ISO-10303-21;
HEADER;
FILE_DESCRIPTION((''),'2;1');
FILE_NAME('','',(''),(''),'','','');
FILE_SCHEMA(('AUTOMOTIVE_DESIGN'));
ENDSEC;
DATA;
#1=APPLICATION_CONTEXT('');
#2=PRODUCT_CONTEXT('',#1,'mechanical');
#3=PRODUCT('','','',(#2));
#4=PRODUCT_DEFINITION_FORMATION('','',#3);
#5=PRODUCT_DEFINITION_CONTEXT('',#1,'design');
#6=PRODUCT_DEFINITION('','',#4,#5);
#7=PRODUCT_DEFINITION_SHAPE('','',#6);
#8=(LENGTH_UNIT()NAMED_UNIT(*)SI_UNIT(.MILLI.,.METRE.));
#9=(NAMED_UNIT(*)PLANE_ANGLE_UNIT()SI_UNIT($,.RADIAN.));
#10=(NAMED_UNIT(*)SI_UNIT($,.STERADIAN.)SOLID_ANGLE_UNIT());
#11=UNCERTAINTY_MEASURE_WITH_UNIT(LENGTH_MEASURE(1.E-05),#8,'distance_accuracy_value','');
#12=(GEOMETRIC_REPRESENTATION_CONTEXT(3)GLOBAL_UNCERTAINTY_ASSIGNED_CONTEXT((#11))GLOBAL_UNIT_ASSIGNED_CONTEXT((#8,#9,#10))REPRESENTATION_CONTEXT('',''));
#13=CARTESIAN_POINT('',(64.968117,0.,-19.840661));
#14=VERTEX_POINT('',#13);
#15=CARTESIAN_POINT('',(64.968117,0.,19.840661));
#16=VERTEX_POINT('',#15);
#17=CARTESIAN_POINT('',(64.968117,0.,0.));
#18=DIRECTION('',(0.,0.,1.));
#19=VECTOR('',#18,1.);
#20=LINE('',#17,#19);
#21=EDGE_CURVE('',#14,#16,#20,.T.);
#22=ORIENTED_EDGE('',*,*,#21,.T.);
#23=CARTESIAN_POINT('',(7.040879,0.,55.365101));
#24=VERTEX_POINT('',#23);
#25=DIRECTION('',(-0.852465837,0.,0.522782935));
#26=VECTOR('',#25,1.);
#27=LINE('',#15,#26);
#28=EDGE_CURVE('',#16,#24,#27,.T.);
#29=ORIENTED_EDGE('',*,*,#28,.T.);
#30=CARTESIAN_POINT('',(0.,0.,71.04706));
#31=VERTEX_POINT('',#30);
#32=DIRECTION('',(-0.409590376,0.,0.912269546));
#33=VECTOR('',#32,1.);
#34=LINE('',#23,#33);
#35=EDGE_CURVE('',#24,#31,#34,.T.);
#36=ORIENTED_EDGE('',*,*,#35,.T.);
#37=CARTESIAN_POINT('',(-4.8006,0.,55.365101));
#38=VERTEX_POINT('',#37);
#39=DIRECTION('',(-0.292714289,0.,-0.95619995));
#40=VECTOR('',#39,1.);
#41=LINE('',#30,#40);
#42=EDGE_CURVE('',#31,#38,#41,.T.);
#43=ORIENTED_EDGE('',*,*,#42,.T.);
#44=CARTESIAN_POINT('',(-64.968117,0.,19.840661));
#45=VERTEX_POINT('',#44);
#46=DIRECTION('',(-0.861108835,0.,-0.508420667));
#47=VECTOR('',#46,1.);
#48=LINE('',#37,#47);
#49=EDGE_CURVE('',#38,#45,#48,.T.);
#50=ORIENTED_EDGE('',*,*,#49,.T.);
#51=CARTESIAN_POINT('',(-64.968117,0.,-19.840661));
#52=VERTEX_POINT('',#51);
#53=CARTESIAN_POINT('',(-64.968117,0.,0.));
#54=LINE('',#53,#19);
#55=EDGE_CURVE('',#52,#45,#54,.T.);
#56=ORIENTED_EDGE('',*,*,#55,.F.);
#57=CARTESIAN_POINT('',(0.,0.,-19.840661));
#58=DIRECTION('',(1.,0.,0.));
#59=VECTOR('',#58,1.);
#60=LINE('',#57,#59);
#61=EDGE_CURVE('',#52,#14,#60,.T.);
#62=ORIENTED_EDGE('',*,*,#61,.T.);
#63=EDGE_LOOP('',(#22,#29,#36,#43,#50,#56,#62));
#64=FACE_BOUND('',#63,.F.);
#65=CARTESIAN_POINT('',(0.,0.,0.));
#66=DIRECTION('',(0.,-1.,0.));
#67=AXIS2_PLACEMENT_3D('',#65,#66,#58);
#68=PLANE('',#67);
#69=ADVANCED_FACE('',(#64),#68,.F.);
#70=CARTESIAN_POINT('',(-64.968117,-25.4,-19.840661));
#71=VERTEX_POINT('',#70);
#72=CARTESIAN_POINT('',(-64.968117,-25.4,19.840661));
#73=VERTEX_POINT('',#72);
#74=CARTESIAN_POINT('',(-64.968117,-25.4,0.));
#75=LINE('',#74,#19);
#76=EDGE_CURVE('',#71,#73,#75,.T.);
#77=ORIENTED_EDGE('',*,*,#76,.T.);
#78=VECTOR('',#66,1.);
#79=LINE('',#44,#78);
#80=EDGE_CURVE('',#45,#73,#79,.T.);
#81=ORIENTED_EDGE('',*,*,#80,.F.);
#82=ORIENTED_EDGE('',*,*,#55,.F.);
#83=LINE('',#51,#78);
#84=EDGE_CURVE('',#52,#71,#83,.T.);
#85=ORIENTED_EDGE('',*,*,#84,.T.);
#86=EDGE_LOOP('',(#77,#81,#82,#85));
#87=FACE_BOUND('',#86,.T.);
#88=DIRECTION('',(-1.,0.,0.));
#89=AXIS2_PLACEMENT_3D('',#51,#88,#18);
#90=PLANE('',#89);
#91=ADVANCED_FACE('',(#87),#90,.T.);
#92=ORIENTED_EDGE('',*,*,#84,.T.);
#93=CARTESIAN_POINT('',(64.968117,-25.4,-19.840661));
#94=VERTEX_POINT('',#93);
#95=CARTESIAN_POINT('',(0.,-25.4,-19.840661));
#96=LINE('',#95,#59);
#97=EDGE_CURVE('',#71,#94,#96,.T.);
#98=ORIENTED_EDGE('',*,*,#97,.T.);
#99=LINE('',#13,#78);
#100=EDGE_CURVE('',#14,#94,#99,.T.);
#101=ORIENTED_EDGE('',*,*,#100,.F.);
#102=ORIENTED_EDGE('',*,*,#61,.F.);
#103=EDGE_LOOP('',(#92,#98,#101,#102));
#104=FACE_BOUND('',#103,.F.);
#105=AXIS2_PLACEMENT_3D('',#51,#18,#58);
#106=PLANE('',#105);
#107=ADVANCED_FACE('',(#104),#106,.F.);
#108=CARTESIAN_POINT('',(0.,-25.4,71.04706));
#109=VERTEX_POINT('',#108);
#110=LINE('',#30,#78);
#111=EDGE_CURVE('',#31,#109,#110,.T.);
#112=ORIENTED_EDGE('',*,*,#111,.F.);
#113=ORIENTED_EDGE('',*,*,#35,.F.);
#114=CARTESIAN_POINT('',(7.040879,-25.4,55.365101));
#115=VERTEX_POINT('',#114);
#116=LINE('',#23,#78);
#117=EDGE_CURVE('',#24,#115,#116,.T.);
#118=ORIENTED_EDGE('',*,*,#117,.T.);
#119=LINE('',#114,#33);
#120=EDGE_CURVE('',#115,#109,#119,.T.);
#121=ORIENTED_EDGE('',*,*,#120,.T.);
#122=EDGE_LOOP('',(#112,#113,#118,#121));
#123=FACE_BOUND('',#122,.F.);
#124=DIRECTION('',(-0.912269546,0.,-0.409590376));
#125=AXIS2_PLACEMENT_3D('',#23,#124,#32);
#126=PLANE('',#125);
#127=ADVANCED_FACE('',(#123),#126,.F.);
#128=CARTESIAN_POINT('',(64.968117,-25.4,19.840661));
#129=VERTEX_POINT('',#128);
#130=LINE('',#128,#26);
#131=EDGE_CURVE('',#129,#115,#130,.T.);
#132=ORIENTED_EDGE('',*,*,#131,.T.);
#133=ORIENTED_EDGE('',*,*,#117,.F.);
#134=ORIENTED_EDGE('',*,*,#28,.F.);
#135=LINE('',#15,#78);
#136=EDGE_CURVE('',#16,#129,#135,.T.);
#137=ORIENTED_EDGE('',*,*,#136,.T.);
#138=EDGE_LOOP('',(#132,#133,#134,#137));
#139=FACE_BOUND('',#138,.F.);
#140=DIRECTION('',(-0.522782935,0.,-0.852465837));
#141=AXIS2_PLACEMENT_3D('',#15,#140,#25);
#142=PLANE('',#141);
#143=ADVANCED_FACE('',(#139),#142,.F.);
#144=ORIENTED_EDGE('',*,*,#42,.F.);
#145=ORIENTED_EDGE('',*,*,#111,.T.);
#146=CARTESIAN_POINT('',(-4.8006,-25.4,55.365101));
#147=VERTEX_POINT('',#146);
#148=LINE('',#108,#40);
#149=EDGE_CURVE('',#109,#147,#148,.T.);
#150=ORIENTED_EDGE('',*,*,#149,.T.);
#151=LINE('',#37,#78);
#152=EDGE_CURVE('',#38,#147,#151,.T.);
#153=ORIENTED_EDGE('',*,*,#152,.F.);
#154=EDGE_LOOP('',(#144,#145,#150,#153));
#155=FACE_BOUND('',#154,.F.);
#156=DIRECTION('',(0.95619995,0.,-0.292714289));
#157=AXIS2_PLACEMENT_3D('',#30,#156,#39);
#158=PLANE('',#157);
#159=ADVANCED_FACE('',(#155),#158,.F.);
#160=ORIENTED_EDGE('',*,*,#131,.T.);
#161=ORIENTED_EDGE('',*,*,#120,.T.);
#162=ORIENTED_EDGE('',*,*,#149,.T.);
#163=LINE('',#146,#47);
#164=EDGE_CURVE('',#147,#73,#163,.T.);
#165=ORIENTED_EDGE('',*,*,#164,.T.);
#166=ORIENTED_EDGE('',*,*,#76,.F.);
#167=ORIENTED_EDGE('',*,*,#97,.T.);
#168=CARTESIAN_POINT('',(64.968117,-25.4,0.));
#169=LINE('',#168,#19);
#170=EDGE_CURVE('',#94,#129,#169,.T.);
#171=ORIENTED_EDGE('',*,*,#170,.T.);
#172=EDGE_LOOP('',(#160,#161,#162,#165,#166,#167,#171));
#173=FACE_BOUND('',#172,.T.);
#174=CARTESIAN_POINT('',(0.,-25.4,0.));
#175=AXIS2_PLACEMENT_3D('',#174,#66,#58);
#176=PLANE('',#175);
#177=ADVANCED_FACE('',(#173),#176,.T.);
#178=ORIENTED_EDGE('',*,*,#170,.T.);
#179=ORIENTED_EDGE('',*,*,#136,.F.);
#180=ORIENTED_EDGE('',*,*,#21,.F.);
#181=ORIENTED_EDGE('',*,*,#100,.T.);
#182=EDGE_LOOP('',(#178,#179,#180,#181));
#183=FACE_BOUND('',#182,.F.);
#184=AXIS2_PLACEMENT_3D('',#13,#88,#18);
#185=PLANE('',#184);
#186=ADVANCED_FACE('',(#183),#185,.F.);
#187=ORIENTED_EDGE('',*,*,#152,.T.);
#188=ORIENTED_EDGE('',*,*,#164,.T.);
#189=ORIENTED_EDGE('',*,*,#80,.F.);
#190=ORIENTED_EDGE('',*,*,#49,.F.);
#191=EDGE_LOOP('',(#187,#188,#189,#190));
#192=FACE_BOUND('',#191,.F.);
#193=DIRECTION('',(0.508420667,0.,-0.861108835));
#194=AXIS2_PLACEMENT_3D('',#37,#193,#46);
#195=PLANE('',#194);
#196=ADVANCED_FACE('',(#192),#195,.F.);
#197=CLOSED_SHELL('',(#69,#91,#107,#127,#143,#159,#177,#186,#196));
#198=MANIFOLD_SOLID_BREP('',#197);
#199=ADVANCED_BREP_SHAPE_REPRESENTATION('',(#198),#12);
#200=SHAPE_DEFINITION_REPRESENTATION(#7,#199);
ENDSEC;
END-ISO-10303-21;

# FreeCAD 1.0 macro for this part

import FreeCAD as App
import Part
import Sketcher

V = App.Vector
Q = App.Units.Quantity

doc = App.newDocument("Part")
body = doc.addObject("PartDesign::Body", "Body")

# Sketch on XZ plane
sketch1 = body.newObject("Sketcher::SketchObject", "Sketch")
sketch1.AttachmentSupport = (doc.getObject("XZ_Plane"), [""])
sketch1.MapMode = "FlatFace"
sketch1.addGeometry(Part.LineSegment(V(-64.968117, 19.840661, 0), V(-64.968117, -19.840661, 0)), False)
sketch1.addGeometry(Part.LineSegment(V(-64.968117, -19.840661, 0), V(64.968117, -19.840661, 0)), False)
sketch1.addGeometry(Part.LineSegment(V(64.968117, -19.840661, 0), V(64.968117, 19.840661, 0)), False)
sketch1.addGeometry(Part.LineSegment(V(64.968117, 19.840661, 0), V(7.040879, 55.365101, 0)), False)
sketch1.addGeometry(Part.LineSegment(V(7.040879, 55.365101, 0), V(0, 71.04706, 0)), False)
sketch1.addGeometry(Part.LineSegment(V(0, 71.04706, 0), V(-4.8006, 55.365101, 0)), False)
sketch1.addGeometry(Part.LineSegment(V(-4.8006, 55.365101, 0), V(-64.968117, 19.840661, 0)), False)
sketch1.addConstraint(Sketcher.Constraint("Coincident", 0, 2, 1, 1))
sketch1.addConstraint(Sketcher.Constraint("Coincident", 1, 2, 2, 1))
sketch1.addConstraint(Sketcher.Constraint("Coincident", 2, 2, 3, 1))
sketch1.addConstraint(Sketcher.Constraint("Coincident", 3, 2, 4, 1))
sketch1.addConstraint(Sketcher.Constraint("Coincident", 4, 2, 5, 1))
sketch1.addConstraint(Sketcher.Constraint("Coincident", 5, 2, 6, 1))
sketch1.addConstraint(Sketcher.Constraint("Coincident", 6, 2, 0, 1))
sketch1.addConstraint(Sketcher.Constraint("Vertical", 0))
sketch1.addConstraint(Sketcher.Constraint("Horizontal", 1))
sketch1.addConstraint(Sketcher.Constraint("Vertical", 2))
sketch1.addConstraint(Sketcher.Constraint("Symmetric", 0, 2, 2, 2, -1, 1))
sketch1.addConstraint(Sketcher.Constraint("PointOnObject", 4, 2, -2))
sketch1.addConstraint(Sketcher.Constraint("Horizontal", 3, 2, 5, 2))
sketch1.addConstraint(Sketcher.Constraint("Horizontal", 2, 2, 6, 2))
sketch1.addConstraint(Sketcher.Constraint("DistanceX", 5, 2, -1, 1, Q("0.189 in")))
sketch1.addConstraint(Sketcher.Constraint("DistanceX", 0, 2, 3, 2, Q("2.8349998 in")))
sketch1.addConstraint(Sketcher.Constraint("DistanceY", 2, 2, 4, 2, Q("2.016 in")))
sketch1.addConstraint(Sketcher.Constraint("DistanceX", 0, 2, -1, 1, Q("2.5577999 in")))
sketch1.addConstraint(Sketcher.Constraint("DistanceY", 2, 2, 3, 2, Q("1.3986 in")))
sketch1.addConstraint(Sketcher.Constraint("DistanceY", -1, 1, 3, 2, 55.365101))
pad1 = body.newObject("PartDesign::Pad", "Pad")
pad1.Profile = sketch1
pad1.Length = Q("1 in")

doc.recompute()
